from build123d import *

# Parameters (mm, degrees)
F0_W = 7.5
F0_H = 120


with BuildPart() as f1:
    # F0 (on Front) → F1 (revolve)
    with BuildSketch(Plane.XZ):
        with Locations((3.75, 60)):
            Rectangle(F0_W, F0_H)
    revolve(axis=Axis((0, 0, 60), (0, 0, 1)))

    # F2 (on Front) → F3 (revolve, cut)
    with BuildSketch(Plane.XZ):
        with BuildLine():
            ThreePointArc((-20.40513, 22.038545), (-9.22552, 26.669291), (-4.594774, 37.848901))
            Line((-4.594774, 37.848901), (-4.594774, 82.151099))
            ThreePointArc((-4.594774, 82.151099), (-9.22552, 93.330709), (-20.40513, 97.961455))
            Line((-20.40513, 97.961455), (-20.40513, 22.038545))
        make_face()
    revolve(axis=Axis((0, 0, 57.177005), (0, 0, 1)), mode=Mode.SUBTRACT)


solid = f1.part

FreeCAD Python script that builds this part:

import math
import FreeCAD as App
import Part
import Sketcher
from FreeCAD import Vector
Q = App.Units.Quantity

doc = App.newDocument("Part")
body = doc.addObject("PartDesign::Body", "Body")

# Sketch on XZ plane
sketch1 = body.newObject("Sketcher::SketchObject", "Sketch")
sketch1.AttachmentSupport = (doc.getObject("XZ_Plane"), [""])
sketch1.MapMode = "FlatFace"
sketch1.addGeometry([
    Part.LineSegment(Vector(0, 120, 0), Vector(0, 0, 0)),
    Part.LineSegment(Vector(0, 0, 0), Vector(8, 0, 0)),
    Part.LineSegment(Vector(8, 0, 0), Vector(8, 120, 0)),
    Part.LineSegment(Vector(8, 120, 0), Vector(0, 120, 0)),
], False)
sketch1.addConstraint([
    Sketcher.Constraint("Coincident", 0, 2, 1, 1),
    Sketcher.Constraint("Coincident", 1, 2, 2, 1),
    Sketcher.Constraint("Coincident", 2, 2, 3, 1),
    Sketcher.Constraint("Coincident", 3, 2, 0, 1),
    Sketcher.Constraint("Vertical", 0),
    Sketcher.Constraint("Horizontal", 1),
    Sketcher.Constraint("Vertical", 2),
    Sketcher.Constraint("Horizontal", 3),
    Sketcher.Constraint("Coincident", 0, 2, -1, 1),
    Sketcher.Constraint("DistanceY", 0, 2, 0, 1, Q("120 mm")),
    Sketcher.Constraint("DistanceX", 1, 1, 1, 2, Q("7.5 mm")),
])
revolution = body.newObject("PartDesign::Revolution", "Revolution")
revolution.Profile = sketch1
revolution.ReferenceAxis = (sketch1, ["V_Axis"])
revolution.Angle = 360

# Sketch on XZ plane
sketch2 = body.newObject("Sketcher::SketchObject", "Sketch001")
sketch2.AttachmentSupport = (doc.getObject("XZ_Plane"), [""])
sketch2.MapMode = "FlatFace"
sketch2.addGeometry([
    Part.ArcOfCircle(Part.Circle(Vector(-20, 38, 0), Vector(0, 0, 1), 16), math.radians(-90), math.radians(0)),
    Part.LineSegment(Vector(-5, 38, 0), Vector(-5, 82, 0)),
    Part.ArcOfCircle(Part.Circle(Vector(-20, 82, 0), Vector(0, 0, 1), 16), math.radians(0), math.radians(90)),
    Part.LineSegment(Vector(-20, 98, 0), Vector(-20, 22, 0)),
], False)
sketch2.addConstraint([
    Sketcher.Constraint("Tangent", 0, 2, 1, 1),
    Sketcher.Constraint("Tangent", 1, 2, 2, 1),
    Sketcher.Constraint("Coincident", 2, 2, 3, 1),
    Sketcher.Constraint("Coincident", 3, 2, 0, 1),
    Sketcher.Constraint("Vertical", 1),
    Sketcher.Constraint("Vertical", 3),
    Sketcher.Constraint("Equal", 0, 2),
    Sketcher.Constraint("Vertical", 0, 3, 2, 2),
    Sketcher.Constraint("DistanceY", 1, 1, 1, 2, Q("44.302198 mm")),
    Sketcher.Constraint("Radius", 0, Q("15.810356 mm")),
    Sketcher.Constraint("DistanceY", -1, 1, 0, 3, Q("37.848901 mm")),
    Sketcher.Constraint("DistanceX", 0, 3, -1, 1, Q("20.40513 mm")),
])
groove = body.newObject("PartDesign::Groove", "Groove")
groove.Profile = sketch2
groove.ReferenceAxis = (sketch2, ["V_Axis"])
groove.Angle = 360

doc.recompute()
